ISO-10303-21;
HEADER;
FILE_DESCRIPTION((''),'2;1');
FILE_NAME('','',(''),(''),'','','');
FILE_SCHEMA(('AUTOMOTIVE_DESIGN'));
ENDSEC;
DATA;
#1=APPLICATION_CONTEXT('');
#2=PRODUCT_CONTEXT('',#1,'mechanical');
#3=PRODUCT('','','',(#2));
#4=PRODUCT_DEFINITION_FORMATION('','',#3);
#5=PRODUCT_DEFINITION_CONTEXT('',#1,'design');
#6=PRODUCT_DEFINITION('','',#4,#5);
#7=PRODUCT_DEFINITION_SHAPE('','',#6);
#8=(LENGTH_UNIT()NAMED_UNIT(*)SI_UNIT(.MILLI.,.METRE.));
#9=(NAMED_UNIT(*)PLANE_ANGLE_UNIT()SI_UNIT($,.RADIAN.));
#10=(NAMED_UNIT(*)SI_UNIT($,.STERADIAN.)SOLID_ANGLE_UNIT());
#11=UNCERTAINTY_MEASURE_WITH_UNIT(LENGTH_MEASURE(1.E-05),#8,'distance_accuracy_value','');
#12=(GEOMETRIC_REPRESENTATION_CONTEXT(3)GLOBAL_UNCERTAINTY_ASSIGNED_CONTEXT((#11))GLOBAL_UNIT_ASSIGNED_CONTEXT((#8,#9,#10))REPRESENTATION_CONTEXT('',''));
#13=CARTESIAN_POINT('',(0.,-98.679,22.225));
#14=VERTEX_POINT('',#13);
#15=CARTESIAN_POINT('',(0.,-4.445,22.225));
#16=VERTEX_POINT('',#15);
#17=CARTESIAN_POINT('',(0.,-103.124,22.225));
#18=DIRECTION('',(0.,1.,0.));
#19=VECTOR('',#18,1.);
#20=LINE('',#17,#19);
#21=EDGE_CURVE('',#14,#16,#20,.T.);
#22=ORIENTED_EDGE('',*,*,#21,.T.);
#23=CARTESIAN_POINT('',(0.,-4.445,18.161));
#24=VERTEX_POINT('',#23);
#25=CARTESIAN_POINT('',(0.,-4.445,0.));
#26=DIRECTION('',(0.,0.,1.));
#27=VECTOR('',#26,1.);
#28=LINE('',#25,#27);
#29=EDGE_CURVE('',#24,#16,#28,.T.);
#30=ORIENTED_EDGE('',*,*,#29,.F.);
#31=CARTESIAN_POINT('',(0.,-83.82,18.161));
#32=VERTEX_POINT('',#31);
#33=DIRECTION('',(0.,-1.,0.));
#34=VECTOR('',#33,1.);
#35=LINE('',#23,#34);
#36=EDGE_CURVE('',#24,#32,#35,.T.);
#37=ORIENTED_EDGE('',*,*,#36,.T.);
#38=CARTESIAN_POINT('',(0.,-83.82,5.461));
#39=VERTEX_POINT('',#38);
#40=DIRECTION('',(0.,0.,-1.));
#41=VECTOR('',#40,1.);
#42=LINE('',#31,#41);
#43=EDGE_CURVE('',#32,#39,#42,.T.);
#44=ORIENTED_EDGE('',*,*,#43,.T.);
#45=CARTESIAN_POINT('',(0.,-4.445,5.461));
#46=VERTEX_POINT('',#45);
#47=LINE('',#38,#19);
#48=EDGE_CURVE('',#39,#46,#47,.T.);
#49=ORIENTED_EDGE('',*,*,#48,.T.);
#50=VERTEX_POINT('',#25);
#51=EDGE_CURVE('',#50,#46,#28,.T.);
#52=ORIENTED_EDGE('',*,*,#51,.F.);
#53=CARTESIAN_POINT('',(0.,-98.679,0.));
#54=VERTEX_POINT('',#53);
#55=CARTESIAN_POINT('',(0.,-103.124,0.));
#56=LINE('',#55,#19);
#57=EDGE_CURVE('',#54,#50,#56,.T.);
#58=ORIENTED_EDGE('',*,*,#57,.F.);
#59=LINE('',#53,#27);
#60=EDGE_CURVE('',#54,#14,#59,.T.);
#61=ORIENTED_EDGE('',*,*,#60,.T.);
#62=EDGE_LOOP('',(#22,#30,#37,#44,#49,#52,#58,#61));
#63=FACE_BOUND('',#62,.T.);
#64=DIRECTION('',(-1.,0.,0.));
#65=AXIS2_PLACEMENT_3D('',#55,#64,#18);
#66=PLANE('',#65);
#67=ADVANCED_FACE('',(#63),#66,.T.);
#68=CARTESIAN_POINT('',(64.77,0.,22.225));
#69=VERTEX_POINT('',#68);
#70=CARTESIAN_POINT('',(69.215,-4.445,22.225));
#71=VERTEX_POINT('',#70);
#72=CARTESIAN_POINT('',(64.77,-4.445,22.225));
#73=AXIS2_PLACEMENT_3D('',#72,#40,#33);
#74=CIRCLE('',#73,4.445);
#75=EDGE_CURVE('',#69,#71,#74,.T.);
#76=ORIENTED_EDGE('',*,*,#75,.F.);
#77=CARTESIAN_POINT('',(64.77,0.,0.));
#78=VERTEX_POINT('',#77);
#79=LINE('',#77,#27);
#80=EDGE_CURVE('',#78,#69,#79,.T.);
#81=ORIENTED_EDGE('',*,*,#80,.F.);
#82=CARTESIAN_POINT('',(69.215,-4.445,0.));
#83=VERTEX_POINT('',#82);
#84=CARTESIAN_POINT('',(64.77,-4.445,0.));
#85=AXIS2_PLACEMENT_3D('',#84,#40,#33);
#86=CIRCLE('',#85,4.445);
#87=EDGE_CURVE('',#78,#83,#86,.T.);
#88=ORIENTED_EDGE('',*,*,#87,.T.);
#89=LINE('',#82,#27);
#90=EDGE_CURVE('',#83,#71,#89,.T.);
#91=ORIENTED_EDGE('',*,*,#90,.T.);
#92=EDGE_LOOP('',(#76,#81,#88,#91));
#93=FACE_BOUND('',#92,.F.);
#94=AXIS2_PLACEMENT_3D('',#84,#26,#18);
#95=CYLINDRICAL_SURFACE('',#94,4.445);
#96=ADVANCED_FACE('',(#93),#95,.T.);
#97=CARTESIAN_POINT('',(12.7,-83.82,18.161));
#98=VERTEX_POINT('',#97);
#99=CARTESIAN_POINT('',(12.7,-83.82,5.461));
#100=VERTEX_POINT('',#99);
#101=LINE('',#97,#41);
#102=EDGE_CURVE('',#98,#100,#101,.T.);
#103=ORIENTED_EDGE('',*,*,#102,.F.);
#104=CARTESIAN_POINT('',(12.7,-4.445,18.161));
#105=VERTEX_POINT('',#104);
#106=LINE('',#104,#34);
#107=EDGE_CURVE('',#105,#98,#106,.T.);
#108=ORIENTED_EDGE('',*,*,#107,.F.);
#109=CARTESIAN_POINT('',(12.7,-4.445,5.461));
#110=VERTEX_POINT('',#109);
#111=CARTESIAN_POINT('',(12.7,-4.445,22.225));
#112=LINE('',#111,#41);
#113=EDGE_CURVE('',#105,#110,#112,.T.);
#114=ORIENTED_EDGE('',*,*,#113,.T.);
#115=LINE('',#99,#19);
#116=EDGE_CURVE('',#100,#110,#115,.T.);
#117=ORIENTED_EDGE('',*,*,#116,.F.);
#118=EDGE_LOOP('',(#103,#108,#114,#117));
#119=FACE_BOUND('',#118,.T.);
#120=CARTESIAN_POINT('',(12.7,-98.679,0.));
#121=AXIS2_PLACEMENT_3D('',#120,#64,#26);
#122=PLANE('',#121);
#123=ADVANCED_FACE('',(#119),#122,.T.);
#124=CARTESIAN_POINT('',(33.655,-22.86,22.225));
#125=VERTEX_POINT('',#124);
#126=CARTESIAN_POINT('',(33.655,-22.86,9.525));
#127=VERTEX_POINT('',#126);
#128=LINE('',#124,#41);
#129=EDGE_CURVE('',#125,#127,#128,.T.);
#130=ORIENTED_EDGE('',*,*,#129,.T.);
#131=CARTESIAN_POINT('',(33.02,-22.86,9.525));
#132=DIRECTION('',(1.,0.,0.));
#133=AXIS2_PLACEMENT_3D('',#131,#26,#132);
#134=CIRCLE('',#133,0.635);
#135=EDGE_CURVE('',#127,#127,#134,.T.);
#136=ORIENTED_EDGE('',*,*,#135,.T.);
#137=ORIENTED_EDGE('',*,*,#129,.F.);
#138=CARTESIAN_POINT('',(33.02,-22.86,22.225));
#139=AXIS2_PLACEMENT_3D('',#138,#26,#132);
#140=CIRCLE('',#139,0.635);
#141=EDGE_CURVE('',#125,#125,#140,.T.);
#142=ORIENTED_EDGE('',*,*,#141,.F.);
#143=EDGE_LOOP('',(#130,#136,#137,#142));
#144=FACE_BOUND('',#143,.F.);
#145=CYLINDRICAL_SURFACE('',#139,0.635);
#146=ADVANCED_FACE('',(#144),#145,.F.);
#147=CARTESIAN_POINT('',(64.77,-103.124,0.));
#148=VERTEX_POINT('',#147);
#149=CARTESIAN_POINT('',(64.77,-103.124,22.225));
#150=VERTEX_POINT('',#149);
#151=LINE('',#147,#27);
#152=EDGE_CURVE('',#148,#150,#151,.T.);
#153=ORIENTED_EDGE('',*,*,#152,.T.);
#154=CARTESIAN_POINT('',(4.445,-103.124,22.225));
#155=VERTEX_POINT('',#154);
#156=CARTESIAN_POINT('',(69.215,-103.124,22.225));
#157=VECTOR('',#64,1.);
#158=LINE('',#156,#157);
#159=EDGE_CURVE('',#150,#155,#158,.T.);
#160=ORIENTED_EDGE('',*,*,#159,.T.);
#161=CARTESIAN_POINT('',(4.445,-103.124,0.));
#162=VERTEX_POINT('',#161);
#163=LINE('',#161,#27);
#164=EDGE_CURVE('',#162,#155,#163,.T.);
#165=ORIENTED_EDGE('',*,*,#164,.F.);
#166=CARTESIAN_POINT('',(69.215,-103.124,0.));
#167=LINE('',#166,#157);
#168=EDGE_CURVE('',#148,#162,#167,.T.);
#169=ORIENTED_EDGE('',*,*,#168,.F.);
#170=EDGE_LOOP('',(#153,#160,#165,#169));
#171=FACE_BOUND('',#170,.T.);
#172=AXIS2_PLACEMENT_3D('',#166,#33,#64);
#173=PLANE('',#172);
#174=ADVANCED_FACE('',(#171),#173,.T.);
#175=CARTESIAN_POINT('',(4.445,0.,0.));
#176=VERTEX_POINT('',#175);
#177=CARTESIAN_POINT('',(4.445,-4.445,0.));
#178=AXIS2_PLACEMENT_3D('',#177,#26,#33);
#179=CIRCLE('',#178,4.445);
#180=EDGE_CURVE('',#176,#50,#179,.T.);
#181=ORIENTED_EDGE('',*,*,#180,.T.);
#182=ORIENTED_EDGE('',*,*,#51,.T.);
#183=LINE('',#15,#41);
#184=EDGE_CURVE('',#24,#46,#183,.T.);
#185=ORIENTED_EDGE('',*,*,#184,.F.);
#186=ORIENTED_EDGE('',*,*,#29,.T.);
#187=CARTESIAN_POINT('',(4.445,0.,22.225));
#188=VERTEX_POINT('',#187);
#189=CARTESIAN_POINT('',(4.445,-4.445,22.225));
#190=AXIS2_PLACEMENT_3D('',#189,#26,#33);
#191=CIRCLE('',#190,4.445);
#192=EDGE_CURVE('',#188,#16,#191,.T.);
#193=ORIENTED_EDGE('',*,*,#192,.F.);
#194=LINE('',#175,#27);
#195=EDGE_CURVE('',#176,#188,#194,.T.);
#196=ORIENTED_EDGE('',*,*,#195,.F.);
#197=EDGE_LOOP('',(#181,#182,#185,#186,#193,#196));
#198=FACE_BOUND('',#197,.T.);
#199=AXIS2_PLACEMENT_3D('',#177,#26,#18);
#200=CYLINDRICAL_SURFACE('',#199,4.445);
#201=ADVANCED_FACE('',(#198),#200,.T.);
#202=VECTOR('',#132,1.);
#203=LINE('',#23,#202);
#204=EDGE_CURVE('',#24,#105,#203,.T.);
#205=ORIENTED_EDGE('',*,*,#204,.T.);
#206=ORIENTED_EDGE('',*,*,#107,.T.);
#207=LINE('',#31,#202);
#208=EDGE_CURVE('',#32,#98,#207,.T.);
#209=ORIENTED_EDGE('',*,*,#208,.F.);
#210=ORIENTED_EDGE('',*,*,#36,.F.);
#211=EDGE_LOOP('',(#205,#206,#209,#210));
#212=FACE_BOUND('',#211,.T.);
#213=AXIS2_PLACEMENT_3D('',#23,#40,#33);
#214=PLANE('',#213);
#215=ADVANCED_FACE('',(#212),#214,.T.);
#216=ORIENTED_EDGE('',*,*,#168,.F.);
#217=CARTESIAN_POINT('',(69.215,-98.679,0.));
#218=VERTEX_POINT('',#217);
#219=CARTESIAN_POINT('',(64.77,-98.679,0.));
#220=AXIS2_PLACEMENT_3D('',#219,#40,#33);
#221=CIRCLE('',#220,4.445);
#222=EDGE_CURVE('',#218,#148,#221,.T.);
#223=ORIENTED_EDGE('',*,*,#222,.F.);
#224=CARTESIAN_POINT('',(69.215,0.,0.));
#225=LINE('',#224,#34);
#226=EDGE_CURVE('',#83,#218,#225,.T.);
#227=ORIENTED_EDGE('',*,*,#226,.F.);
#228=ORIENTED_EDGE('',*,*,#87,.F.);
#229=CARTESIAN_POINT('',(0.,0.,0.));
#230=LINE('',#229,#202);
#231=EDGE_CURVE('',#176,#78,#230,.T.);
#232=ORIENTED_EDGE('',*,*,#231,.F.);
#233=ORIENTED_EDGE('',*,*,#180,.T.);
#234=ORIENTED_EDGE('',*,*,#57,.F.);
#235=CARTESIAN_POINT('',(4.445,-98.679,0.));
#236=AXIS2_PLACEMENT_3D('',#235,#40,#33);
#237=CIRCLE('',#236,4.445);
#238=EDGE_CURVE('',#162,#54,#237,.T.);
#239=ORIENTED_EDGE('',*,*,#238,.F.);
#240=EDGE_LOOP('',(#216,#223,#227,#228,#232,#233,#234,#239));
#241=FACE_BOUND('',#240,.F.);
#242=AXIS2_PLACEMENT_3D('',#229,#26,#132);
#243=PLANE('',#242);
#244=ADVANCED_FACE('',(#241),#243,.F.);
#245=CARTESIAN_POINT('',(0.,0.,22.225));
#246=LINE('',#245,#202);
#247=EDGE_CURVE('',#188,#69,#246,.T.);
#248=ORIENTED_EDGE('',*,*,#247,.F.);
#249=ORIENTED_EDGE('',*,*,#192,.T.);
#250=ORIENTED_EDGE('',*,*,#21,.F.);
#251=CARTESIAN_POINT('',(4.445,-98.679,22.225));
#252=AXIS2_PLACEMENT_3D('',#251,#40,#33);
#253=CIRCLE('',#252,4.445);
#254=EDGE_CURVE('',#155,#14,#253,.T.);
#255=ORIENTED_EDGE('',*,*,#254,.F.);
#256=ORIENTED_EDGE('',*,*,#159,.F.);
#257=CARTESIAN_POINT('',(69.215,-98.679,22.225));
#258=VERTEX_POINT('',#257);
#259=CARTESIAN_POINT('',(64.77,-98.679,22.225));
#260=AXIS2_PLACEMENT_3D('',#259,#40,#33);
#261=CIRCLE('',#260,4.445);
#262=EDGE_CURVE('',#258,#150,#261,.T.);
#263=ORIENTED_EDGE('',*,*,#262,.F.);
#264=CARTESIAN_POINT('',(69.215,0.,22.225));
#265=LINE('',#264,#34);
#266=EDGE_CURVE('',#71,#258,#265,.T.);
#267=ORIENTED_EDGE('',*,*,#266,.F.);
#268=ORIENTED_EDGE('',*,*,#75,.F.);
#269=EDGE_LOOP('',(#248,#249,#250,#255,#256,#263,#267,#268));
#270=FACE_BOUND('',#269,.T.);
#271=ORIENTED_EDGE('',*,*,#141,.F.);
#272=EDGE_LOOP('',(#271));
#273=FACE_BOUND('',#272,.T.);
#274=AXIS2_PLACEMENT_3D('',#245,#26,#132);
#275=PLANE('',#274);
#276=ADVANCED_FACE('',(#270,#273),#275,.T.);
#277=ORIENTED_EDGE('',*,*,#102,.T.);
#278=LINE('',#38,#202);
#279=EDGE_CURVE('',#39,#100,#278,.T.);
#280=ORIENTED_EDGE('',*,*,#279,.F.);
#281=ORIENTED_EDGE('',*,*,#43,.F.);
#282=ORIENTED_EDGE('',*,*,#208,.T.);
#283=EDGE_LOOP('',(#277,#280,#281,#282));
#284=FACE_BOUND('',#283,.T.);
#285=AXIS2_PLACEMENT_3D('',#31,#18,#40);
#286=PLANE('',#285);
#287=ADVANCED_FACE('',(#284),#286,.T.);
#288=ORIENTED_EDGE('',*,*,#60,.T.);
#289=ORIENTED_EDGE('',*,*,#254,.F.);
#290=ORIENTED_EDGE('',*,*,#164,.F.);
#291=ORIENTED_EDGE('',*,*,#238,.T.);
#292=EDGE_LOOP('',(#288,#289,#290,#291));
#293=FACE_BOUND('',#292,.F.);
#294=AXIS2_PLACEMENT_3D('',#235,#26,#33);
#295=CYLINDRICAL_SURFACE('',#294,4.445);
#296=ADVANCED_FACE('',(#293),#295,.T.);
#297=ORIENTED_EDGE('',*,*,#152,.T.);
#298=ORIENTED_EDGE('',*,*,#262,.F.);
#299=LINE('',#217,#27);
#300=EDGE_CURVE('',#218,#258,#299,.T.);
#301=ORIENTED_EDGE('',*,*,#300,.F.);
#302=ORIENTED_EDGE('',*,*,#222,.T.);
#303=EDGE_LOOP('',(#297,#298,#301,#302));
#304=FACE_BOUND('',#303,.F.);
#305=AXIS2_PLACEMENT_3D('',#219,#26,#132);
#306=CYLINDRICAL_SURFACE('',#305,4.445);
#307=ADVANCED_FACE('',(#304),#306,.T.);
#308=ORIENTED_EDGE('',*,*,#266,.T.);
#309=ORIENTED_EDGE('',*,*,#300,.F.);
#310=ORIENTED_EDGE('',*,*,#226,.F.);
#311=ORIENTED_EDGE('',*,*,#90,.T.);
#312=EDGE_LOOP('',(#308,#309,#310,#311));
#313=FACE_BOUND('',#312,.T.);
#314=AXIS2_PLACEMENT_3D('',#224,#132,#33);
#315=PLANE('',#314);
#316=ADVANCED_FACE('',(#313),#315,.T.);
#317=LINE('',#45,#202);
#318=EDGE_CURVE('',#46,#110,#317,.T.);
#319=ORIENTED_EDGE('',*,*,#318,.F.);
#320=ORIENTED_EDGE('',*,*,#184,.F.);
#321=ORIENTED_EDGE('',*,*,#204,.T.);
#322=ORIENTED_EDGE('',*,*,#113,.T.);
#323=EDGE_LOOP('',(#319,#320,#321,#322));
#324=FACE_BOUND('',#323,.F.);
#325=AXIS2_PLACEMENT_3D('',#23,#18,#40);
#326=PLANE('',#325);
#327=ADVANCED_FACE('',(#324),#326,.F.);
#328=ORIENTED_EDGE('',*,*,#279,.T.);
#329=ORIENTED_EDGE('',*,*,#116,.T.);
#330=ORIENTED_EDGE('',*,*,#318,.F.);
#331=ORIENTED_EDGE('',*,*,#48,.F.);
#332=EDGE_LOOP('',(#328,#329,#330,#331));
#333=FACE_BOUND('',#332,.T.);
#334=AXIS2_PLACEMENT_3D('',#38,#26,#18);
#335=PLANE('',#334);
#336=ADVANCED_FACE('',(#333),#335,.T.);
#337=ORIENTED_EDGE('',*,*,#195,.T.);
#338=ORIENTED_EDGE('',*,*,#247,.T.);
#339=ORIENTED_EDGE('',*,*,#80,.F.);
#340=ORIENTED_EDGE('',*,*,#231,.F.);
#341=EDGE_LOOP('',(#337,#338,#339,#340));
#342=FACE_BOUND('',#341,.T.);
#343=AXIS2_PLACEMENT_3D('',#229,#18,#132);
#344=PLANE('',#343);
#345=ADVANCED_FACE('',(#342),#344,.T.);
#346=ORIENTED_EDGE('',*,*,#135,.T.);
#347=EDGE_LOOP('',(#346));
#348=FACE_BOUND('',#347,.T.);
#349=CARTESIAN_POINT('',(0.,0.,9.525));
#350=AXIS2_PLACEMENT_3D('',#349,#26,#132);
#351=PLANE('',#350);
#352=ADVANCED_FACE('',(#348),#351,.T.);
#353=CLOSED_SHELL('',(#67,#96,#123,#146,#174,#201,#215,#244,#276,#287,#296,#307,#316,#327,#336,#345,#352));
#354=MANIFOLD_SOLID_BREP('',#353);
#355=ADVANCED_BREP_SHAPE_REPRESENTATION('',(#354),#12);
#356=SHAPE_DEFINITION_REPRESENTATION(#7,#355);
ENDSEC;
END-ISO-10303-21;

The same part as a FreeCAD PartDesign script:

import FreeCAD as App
import Part
import Sketcher
Q = App.Units.Quantity


def edges_at(feature, points):
    """Names of the edges that pass closest to the given points."""
    edges = feature.Shape.Edges
    near = lambda p: min(range(len(edges)), key=lambda i: edges[i].distToShape(Part.Vertex(*p))[0])
    return sorted({f"Edge{near(p) + 1}" for p in points})


def add_polygon(sketch, points):
    """Adds a closed chain of lines whose ends are joined by coincident constraints."""
    first, n = sketch.GeometryCount, len(points)
    for a, b in zip(points, points[1:] + points[:1]):
        sketch.addGeometry(Part.LineSegment(App.Vector(*a, 0), App.Vector(*b, 0)), False)
    for i in range(n):
        sketch.addConstraint(Sketcher.Constraint("Coincident", first + i, 2, first + (i + 1) % n, 1))

doc = App.newDocument("Part")
body = doc.addObject("PartDesign::Body", "Body")

# Sketch on XY plane
sketch1 = body.newObject("Sketcher::SketchObject", "Sketch")
sketch1.AttachmentSupport = (doc.getObject("XY_Plane"), [""])
sketch1.MapMode = "FlatFace"
add_polygon(sketch1, [(69, 0), (0, 0), (0, -103), (69, -103)])  # lines 0-3
sketch1.addConstraint([
    Sketcher.Constraint("Horizontal", 0),
    Sketcher.Constraint("Vertical", 1),
    Sketcher.Constraint("Horizontal", 2),
    Sketcher.Constraint("Vertical", 3),
    Sketcher.Constraint("Coincident", 0, 2, -1, 1),
    Sketcher.Constraint("DistanceY", 1, 2, 1, 1, Q("4.06 in")),
    Sketcher.Constraint("DistanceX", 0, 2, 0, 1, Q("2.725 in")),
])
pad1 = body.newObject("PartDesign::Pad", "Pad")
pad1.Profile = sketch1
pad1.Length = Q("0.875 in")
doc.recompute()

fillet = body.newObject("PartDesign::Fillet", "Fillet")
fillet.Base = (pad1, edges_at(pad1, [(0, 0, 11.113), (69.215, 0, 11.113), (0, -103.124, 11.113)]))
fillet.Radius = Q("0.175 in")
doc.recompute()

fillet2 = body.newObject("PartDesign::Fillet", "Fillet001")
fillet2.Base = (fillet, edges_at(fillet, [(69.215, -103.124, 11.113)]))
fillet2.Radius = Q("0.175 in")

# Sketch on YZ plane
sketch2 = body.newObject("Sketcher::SketchObject", "Sketch001")
sketch2.AttachmentSupport = (doc.getObject("YZ_Plane"), [""])
sketch2.MapMode = "FlatFace"
add_polygon(sketch2, [(-84, 18), (-4, 18), (-4, 5), (-84, 5)])  # lines 0-3
sketch2.addConstraint([
    Sketcher.Constraint("Horizontal", 0),
    Sketcher.Constraint("Vertical", 1),
    Sketcher.Constraint("Horizontal", 2),
    Sketcher.Constraint("Vertical", 3),
    Sketcher.Constraint("DistanceY", 1, 2, 1, 1, Q("0.5 in")),
    Sketcher.Constraint("DistanceX", 0, 1, 0, 2, Q("3.125 in")),
    Sketcher.Constraint("DistanceX", 2, 2, -1, 1, Q("3.3 in")),
    Sketcher.Constraint("DistanceY", -1, 1, 0, 2, Q("0.715 in")),
])
pocket1 = body.newObject("PartDesign::Pocket", "Pocket")
pocket1.Profile = sketch2
pocket1.Length = Q("0.5 in")
pocket1.Reversed = True

# Sketch on XY plane
sketch3 = body.newObject("Sketcher::SketchObject", "Sketch002")
sketch3.AttachmentSupport = (doc.getObject("XY_Plane"), [""])
sketch3.MapMode = "FlatFace"
sketch3.AttachmentOffset = App.Placement(App.Vector(0, 0, 0.875 * 25.4), App.Rotation())
sketch3.addGeometry(Part.Circle(App.Vector(33, -22.9, 0), App.Vector(0, 0, 1), 0.6), False)
sketch3.addConstraint([
    Sketcher.Constraint("Diameter", 0, Q("0.05 in")),
    Sketcher.Constraint("DistanceX", -1, 1, 0, 3, Q("1.3 in")),
    Sketcher.Constraint("DistanceY", 0, 3, -1, 1, Q("0.9 in")),
])
pocket2 = body.newObject("PartDesign::Pocket", "Pocket001")
pocket2.Profile = sketch3
pocket2.Length = Q("0.5 in")

doc.recompute()
